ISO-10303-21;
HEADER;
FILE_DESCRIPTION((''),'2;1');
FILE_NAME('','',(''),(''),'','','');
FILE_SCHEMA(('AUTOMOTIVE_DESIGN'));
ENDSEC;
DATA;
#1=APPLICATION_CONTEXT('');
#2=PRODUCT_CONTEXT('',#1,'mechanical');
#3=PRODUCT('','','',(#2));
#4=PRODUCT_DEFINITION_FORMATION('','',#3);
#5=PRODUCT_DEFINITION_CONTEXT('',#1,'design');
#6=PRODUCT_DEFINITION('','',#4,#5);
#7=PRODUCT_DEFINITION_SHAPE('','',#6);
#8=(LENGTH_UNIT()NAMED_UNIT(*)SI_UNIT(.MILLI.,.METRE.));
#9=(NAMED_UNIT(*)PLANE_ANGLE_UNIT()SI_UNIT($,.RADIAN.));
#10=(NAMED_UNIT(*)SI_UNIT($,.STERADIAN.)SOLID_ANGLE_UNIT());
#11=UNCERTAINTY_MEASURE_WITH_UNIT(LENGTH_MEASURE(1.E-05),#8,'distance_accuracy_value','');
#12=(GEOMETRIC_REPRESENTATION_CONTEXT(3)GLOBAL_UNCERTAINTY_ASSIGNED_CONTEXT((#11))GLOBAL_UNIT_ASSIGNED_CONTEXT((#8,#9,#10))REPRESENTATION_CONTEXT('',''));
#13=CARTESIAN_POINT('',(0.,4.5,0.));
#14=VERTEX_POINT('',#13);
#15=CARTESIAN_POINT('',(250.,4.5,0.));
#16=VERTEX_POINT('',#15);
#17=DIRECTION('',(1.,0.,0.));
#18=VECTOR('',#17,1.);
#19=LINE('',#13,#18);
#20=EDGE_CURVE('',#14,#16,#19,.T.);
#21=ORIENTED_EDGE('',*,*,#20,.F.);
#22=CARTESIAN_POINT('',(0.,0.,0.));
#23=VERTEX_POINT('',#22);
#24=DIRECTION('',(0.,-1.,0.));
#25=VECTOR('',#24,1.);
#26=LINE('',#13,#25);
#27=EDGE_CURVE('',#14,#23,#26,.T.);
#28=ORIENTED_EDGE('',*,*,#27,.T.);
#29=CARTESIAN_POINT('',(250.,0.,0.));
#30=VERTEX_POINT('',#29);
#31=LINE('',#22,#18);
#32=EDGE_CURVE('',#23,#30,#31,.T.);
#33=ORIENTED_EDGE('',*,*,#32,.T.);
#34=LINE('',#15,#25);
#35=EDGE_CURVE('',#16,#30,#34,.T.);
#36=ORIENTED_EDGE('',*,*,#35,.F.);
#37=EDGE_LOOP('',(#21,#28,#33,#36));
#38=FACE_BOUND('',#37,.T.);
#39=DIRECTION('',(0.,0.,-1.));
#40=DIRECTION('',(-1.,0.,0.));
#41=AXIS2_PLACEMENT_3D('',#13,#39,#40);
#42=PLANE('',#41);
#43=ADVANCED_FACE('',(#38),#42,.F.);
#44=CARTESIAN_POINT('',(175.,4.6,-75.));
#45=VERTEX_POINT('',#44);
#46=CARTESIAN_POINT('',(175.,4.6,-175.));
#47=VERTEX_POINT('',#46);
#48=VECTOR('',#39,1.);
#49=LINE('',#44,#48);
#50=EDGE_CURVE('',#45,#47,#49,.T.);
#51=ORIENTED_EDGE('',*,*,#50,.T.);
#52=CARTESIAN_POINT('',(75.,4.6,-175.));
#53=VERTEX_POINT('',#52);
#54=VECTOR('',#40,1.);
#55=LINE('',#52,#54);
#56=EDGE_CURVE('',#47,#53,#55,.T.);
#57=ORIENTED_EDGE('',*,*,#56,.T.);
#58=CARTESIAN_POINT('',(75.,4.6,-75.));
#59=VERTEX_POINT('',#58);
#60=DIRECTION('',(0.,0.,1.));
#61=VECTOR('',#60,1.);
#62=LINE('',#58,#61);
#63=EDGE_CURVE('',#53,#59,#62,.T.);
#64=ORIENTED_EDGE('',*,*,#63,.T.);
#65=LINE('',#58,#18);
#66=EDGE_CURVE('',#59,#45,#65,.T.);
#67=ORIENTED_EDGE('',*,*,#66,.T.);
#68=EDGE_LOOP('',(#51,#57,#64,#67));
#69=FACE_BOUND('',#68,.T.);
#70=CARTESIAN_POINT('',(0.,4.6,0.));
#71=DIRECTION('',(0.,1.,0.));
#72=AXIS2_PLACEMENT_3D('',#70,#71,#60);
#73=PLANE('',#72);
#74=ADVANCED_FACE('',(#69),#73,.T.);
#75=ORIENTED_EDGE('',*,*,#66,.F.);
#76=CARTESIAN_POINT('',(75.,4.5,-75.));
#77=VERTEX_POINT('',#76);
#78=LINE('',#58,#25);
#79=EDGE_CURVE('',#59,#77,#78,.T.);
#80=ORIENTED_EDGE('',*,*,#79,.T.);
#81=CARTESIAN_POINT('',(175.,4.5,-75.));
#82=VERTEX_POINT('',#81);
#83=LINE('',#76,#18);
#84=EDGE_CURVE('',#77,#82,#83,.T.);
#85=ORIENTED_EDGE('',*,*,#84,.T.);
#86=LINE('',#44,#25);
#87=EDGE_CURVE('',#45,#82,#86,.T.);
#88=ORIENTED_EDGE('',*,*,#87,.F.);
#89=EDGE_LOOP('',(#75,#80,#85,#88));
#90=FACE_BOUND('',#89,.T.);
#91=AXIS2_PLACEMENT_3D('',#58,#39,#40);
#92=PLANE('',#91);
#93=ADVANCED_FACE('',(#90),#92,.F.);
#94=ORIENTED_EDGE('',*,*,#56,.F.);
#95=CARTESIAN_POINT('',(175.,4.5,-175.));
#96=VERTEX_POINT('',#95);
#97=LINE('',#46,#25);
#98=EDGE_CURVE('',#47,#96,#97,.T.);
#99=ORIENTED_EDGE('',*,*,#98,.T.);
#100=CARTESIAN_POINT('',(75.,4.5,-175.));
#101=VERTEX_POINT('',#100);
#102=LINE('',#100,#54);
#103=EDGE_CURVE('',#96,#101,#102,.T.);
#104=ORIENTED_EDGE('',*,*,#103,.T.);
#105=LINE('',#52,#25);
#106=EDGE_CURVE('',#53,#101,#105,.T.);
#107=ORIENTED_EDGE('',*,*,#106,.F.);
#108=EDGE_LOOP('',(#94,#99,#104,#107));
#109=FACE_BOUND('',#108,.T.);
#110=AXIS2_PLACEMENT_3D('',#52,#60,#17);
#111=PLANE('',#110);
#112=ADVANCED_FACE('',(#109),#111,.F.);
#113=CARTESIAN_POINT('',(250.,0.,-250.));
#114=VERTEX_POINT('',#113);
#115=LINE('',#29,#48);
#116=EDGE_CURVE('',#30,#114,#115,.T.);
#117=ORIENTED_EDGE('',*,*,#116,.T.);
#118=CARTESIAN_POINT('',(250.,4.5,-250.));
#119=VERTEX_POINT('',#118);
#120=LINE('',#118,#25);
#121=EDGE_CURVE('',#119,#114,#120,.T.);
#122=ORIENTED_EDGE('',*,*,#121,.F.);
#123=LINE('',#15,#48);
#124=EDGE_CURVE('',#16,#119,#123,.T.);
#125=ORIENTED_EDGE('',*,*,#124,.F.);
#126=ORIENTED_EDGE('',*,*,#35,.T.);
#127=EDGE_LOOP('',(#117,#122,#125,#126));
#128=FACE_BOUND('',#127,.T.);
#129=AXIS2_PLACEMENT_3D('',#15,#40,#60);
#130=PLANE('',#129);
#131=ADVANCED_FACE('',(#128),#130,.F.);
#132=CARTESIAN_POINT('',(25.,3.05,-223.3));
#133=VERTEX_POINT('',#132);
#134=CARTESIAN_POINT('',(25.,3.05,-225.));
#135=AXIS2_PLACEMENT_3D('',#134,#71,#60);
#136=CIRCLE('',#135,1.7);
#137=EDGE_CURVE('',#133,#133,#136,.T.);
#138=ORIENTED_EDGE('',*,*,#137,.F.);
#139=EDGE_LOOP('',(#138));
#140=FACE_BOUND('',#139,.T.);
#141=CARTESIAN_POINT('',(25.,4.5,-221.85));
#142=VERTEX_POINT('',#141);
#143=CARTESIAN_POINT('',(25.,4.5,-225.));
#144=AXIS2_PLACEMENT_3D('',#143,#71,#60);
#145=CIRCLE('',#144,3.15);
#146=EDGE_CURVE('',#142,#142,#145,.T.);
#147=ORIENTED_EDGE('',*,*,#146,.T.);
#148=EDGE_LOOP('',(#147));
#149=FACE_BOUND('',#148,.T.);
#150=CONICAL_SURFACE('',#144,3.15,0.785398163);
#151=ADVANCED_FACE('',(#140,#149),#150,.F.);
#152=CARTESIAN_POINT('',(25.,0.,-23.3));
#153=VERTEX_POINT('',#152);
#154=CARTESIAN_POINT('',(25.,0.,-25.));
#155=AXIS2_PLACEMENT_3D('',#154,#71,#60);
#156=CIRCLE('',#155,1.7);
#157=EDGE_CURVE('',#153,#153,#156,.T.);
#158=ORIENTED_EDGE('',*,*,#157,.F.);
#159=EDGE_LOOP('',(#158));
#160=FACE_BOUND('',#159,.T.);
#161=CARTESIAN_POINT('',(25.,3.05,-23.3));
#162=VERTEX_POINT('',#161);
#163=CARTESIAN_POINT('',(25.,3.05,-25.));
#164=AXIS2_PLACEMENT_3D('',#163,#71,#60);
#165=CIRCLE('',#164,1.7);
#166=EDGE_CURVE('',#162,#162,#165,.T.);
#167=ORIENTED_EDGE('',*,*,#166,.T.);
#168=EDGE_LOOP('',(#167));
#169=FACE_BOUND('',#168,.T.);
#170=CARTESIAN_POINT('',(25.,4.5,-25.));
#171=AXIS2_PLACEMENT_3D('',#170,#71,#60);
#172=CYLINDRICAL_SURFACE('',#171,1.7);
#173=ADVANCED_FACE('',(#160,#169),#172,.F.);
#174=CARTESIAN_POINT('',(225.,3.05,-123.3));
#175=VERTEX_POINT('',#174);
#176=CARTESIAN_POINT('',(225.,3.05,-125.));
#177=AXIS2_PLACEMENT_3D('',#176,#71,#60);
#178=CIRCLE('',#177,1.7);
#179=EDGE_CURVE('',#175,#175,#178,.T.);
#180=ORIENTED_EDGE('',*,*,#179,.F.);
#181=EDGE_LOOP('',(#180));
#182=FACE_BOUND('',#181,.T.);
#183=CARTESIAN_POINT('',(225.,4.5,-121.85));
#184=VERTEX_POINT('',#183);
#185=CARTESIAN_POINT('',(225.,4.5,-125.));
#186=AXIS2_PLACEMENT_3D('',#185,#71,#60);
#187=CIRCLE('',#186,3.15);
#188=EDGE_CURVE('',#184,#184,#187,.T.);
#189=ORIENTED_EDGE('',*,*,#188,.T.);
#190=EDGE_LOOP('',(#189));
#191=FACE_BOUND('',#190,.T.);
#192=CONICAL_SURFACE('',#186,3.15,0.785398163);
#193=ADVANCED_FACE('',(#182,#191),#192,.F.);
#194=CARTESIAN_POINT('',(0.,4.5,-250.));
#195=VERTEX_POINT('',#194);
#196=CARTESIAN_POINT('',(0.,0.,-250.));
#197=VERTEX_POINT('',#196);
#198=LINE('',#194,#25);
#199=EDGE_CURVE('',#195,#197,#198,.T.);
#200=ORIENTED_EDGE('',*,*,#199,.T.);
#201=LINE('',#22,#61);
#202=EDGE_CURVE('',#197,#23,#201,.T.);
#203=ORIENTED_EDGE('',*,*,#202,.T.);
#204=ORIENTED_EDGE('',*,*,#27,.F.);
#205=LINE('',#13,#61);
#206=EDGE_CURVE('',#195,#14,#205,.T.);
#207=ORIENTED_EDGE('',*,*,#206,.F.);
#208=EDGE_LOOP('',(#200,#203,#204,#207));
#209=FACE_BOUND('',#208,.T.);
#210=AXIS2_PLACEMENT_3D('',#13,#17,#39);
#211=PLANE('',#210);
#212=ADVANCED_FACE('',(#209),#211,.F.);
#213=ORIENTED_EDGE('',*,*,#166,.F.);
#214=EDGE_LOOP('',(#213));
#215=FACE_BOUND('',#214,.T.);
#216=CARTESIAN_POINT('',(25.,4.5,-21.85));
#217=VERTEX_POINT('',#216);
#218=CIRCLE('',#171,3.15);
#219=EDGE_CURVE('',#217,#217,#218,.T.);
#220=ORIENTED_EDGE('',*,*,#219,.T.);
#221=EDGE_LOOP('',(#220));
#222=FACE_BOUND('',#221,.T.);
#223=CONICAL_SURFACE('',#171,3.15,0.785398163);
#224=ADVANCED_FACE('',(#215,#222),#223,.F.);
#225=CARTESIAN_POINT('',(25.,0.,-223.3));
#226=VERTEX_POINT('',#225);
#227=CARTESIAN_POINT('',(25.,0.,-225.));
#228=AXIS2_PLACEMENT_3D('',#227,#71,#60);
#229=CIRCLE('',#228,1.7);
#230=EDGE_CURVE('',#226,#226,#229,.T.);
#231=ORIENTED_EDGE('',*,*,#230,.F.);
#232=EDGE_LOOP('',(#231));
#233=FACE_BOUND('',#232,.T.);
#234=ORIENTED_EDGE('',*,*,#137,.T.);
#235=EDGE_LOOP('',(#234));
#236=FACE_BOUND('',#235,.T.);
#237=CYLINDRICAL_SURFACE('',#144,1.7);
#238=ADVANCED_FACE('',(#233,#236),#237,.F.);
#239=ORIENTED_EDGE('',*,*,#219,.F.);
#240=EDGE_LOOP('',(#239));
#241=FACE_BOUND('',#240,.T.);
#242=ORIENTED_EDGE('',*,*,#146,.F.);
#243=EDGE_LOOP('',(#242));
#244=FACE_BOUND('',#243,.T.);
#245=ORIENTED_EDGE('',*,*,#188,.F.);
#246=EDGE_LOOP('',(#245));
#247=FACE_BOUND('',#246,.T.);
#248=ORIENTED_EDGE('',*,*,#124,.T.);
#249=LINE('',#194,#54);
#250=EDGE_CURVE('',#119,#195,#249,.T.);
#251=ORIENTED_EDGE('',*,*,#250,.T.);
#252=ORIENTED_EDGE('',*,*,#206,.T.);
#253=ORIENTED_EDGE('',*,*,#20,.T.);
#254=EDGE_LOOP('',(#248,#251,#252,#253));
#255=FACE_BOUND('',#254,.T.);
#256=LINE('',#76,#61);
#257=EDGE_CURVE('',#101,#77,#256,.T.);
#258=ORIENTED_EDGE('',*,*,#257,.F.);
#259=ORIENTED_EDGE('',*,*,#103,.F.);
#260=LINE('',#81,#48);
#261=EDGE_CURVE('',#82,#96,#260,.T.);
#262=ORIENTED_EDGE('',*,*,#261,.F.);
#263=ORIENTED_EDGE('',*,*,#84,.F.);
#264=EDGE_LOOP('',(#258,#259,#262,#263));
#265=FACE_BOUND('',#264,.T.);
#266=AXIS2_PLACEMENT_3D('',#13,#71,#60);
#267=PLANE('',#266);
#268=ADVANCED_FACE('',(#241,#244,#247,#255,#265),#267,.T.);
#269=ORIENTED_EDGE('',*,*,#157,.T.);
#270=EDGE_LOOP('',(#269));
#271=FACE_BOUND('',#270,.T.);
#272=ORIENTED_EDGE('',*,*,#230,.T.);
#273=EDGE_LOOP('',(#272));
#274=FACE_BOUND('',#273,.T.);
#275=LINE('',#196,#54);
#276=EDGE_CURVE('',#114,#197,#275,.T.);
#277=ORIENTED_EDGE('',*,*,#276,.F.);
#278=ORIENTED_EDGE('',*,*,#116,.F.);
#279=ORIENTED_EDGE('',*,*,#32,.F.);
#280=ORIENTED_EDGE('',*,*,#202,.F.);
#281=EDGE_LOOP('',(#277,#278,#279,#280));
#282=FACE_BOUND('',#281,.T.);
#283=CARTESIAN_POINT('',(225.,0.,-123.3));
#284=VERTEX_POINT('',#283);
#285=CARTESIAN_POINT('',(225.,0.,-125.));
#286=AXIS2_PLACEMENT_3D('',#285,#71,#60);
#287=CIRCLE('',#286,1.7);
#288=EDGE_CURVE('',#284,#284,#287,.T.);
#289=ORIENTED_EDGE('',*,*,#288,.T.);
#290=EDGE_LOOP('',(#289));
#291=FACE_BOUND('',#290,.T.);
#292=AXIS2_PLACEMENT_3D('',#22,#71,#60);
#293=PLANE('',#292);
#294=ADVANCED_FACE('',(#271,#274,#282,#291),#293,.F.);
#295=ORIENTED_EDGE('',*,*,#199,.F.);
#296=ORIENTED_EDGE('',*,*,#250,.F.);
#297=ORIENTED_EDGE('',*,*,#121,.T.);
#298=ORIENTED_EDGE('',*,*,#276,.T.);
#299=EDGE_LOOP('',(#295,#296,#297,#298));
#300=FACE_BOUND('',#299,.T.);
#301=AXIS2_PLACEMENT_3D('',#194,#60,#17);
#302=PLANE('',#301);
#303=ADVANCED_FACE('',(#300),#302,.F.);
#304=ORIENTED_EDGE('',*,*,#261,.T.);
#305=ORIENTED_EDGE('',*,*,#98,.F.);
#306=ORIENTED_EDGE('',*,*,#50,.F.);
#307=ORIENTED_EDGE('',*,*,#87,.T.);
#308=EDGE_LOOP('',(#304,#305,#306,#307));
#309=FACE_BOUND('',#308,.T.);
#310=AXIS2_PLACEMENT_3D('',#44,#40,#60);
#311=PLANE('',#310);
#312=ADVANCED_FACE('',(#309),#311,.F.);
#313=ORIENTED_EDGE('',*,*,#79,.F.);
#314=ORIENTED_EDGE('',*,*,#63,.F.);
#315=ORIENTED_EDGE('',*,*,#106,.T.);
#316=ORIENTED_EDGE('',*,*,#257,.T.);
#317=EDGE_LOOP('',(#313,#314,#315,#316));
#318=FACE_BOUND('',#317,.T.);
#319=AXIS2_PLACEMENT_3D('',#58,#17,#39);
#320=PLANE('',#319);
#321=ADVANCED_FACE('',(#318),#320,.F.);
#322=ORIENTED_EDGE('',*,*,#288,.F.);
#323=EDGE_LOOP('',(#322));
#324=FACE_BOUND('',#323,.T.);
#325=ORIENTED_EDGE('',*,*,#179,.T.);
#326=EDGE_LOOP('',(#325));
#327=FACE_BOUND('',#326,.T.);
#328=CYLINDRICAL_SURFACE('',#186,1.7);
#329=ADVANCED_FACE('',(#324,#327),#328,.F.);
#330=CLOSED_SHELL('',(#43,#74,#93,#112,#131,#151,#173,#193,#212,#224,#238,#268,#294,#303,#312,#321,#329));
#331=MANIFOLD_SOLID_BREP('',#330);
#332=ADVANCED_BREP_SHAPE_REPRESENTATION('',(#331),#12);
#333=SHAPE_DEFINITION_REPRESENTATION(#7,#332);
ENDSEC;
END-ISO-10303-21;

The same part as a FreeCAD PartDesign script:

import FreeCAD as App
import Part
import Sketcher

V = App.Vector
Q = App.Units.Quantity


def add_polygon(sketch, points):
    """Adds a closed chain of lines whose ends are joined by coincident constraints."""
    first, n = sketch.GeometryCount, len(points)
    for a, b in zip(points, points[1:] + points[:1]):
        sketch.addGeometry(Part.LineSegment(App.Vector(*a, 0), App.Vector(*b, 0)), False)
    for i in range(n):
        sketch.addConstraint(Sketcher.Constraint("Coincident", first + i, 2, first + (i + 1) % n, 1))

doc = App.newDocument("Part")
body = doc.addObject("PartDesign::Body", "Body")

# Sketch on XZ plane
sketch1 = body.newObject("Sketcher::SketchObject", "Sketch")
sketch1.AttachmentSupport = (doc.getObject("XZ_Plane"), [""])
sketch1.MapMode = "FlatFace"
add_polygon(sketch1, [(0, -250), (0, 0), (250, 0), (250, -250)])  # lines 0-3
sketch1.addConstraint(Sketcher.Constraint("Vertical", 0))
sketch1.addConstraint(Sketcher.Constraint("Horizontal", 1))
sketch1.addConstraint(Sketcher.Constraint("Vertical", 2))
sketch1.addConstraint(Sketcher.Constraint("Horizontal", 3))
sketch1.addConstraint(Sketcher.Constraint("Coincident", 0, 2, -1, 1))
sketch1.addConstraint(Sketcher.Constraint("Equal", 3, 0))
sketch1.addConstraint(Sketcher.Constraint("DistanceX", 1, 1, 1, 2, Q("250 mm")))
pad1 = body.newObject("PartDesign::Pad", "Pad")
pad1.Profile = sketch1
pad1.Length = 4.5
pad1.Reversed = True

# Sketch on XZ plane
sketch2 = body.newObject("Sketcher::SketchObject", "Sketch001")
sketch2.AttachmentSupport = (doc.getObject("XZ_Plane"), [""])
sketch2.MapMode = "FlatFace"
sketch2.AttachmentOffset = App.Placement(V(0, 0, -4.5), App.Rotation())
sketch2.addGeometry(Part.Circle(V(25, -25, 0), V(0, 0, 1), 1.7), False)
sketch2.addGeometry(Part.Circle(V(25, -225, 0), V(0, 0, 1), 1.7), False)
sketch2.addGeometry(Part.Circle(V(225, -125, 0), V(0, 0, 1), 1.7), False)
sketch2.addConstraint(Sketcher.Constraint("Equal", 0, 1))
sketch2.addConstraint(Sketcher.Constraint("Equal", 1, 2))
sketch2.addConstraint(Sketcher.Constraint("Vertical", 0, 3, 1, 3))
sketch2.addConstraint(Sketcher.Constraint("Diameter", 0, Q("3.4 mm")))
sketch2.addConstraint(Sketcher.Constraint("DistanceX", -1, 1, 0, 3, Q("25 mm")))
sketch2.addConstraint(Sketcher.Constraint("DistanceY", 0, 3, -1, 1, Q("25 mm")))
sketch2.addConstraint(Sketcher.Constraint("DistanceY", 1, 3, -1, 1, Q("225 mm")))
sketch2.addConstraint(Sketcher.Constraint("DistanceX", -1, 1, 2, 3, Q("225 mm")))
sketch2.addConstraint(Sketcher.Constraint("DistanceY", 2, 3, -1, 1, Q("125 mm")))
doc.recompute()
hole = body.newObject("PartDesign::Hole", "Hole")
hole.Profile = sketch2
hole.ThreadType = "None"
hole.Diameter = 3.4
hole.DepthType = "ThroughAll"
hole.HoleCutType = "Countersink"
hole.HoleCutDiameter = 6.3
hole.HoleCutCountersinkAngle = 90
hole.Reversed = True

# Sketch on XZ plane
sketch3 = body.newObject("Sketcher::SketchObject", "Sketch002")
sketch3.AttachmentSupport = (doc.getObject("XZ_Plane"), [""])
sketch3.MapMode = "FlatFace"
sketch3.AttachmentOffset = App.Placement(V(0, 0, -4.5), App.Rotation())
add_polygon(sketch3, [(75, -175), (75, -75), (175, -75), (175, -175)])  # lines 0-3
sketch3.addConstraint(Sketcher.Constraint("Vertical", 0))
sketch3.addConstraint(Sketcher.Constraint("Horizontal", 1))
sketch3.addConstraint(Sketcher.Constraint("Vertical", 2))
sketch3.addConstraint(Sketcher.Constraint("Horizontal", 3))
sketch3.addConstraint(Sketcher.Constraint("Equal", 3, 0))
sketch3.addConstraint(Sketcher.Constraint("DistanceX", 1, 1, 1, 2, Q("100 mm")))
sketch3.addConstraint(Sketcher.Constraint("DistanceX", -1, 1, 0, 2, Q("75 mm")))
sketch3.addConstraint(Sketcher.Constraint("DistanceY", 0, 2, -1, 1, Q("75 mm")))
pad2 = body.newObject("PartDesign::Pad", "Pad001")
pad2.Profile = sketch3
pad2.Length = 0.1
pad2.Reversed = True

doc.recompute()
